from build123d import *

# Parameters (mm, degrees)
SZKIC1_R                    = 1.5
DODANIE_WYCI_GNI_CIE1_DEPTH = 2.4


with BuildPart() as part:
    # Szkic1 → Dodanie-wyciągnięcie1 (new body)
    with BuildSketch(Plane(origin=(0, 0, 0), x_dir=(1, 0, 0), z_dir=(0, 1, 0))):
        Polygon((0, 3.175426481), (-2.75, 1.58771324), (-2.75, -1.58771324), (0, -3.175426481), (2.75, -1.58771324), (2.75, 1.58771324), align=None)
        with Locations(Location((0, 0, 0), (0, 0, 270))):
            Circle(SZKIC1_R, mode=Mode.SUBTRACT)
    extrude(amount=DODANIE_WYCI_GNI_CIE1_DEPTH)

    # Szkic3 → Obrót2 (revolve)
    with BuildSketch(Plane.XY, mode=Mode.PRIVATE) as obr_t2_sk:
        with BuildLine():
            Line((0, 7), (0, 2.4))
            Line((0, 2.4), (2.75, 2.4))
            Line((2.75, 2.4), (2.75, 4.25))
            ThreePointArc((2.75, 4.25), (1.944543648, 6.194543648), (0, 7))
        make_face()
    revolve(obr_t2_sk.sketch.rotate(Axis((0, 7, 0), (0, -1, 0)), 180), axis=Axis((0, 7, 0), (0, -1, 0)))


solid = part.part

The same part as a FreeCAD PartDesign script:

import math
import FreeCAD as App
import Part
import Sketcher
Q = App.Units.Quantity

doc = App.newDocument("Part")
params = doc.addObject("Spreadsheet::Sheet", "Params")
for row, (alias, value) in enumerate([
    ("sketch1_diameter", "3 mm"),
    ("pad1_length", "2.4 mm"),
    ("sketch2_radius", "2.75 mm"),
    ("sketch2_height", "4.6 mm"),
    ("revolution_angle", "360 deg"),
], start=1):
    params.set(f"A{row}", alias)
    params.set(f"B{row}", "=" + value)
    params.setAlias(f"B{row}", alias)

body = doc.addObject("PartDesign::Body", "Body")

sketch1 = doc.addObject("Sketcher::SketchObject", "Sketch")
body.addObject(sketch1)
sketch1.AttachmentSupport = (doc.XZ_Plane, [""])
sketch1.MapMode = "FlatFace"
sketch1.addGeometry([
    Part.LineSegment(App.Vector(0, -3.2, 0), App.Vector(-2.8, -1.6, 0)),
    Part.LineSegment(App.Vector(-2.8, -1.6, 0), App.Vector(-2.8, 1.6, 0)),
    Part.LineSegment(App.Vector(-2.8, 1.6, 0), App.Vector(0, 3.2, 0)),
    Part.LineSegment(App.Vector(0, 3.2, 0), App.Vector(2.8, 1.6, 0)),
    Part.LineSegment(App.Vector(2.8, 1.6, 0), App.Vector(2.8, -1.6, 0)),
    Part.LineSegment(App.Vector(2.8, -1.6, 0), App.Vector(0, -3.2, 0)),
    Part.Circle(App.Vector(0, 0, 0), App.Vector(0, 0, 1), 1.5),
], False)
sketch1.addConstraint([
    Sketcher.Constraint("Coincident", 0, 2, 1, 1),
    Sketcher.Constraint("Coincident", 1, 2, 2, 1),
    Sketcher.Constraint("Coincident", 2, 2, 3, 1),
    Sketcher.Constraint("Coincident", 3, 2, 4, 1),
    Sketcher.Constraint("Coincident", 4, 2, 5, 1),
    Sketcher.Constraint("Coincident", 5, 2, 0, 1),
    Sketcher.Constraint("Vertical", 1),
    Sketcher.Constraint("Vertical", 4),
    Sketcher.Constraint("Coincident", 6, 3, -1, 1),
    Sketcher.Constraint("Symmetric", 0, 2, 3, 2, -1, 1),
    Sketcher.Constraint("Symmetric", 2, 2, 5, 2, -1, 1),
    Sketcher.Constraint("PointOnObject", 2, 2, -2),
    Sketcher.Constraint("Parallel", 2, 5),
    Sketcher.Constraint("Horizontal", 1, 2, 3, 2),
    Sketcher.Constraint("Diameter", 6, 3.0),
    Sketcher.Constraint("Angle", 0, Q("150 deg")),
    Sketcher.Constraint("DistanceX", 1, 2, 3, 2, 5.5),
    Sketcher.Constraint("DistanceY", 1, 1, 1, 2, 3.175426),
])
sketch1.setExpression("Constraints[14]", "Params.sketch1_diameter")
pad1 = doc.addObject("PartDesign::Pad", "Pad")
body.addObject(pad1)
pad1.Profile = sketch1
pad1.setExpression("Length", "Params.pad1_length")
pad1.Reversed = True

sketch2 = doc.addObject("Sketcher::SketchObject", "Sketch001")
body.addObject(sketch2)
sketch2.AttachmentSupport = (doc.XY_Plane, [""])
sketch2.MapMode = "FlatFace"
sketch2.addGeometry([
    Part.LineSegment(App.Vector(0, 7, 0), App.Vector(0, 2.4, 0)),
    Part.LineSegment(App.Vector(0, 2.4, 0), App.Vector(2.8, 2.4, 0)),
    Part.LineSegment(App.Vector(2.8, 2.4, 0), App.Vector(2.8, 4.2, 0)),
    Part.ArcOfCircle(Part.Circle(App.Vector(0, 4.2, 0), App.Vector(0, 0, 1), 2.8), math.radians(0), math.radians(90)),
], False)
sketch2.addConstraint([
    Sketcher.Constraint("Coincident", 0, 2, 1, 1),
    Sketcher.Constraint("Coincident", 1, 2, 2, 1),
    Sketcher.Constraint("Tangent", 2, 2, 3, 1),
    Sketcher.Constraint("Coincident", 3, 2, 0, 1),
    Sketcher.Constraint("Vertical", 0),
    Sketcher.Constraint("Horizontal", 1),
    Sketcher.Constraint("Vertical", 2),
    Sketcher.Constraint("PointOnObject", 3, 3, -2),
    Sketcher.Constraint("PointOnObject", 0, 2, -2),
    Sketcher.Constraint("Radius", 3, 2.75),
    Sketcher.Constraint("DistanceY", 0, 2, 0, 1, 4.6),
    Sketcher.Constraint("DistanceY", -1, 1, 3, 2, 7.0),
])
sketch2.setExpression("Constraints[9]", "Params.sketch2_radius")
sketch2.setExpression("Constraints[10]", "Params.sketch2_height")
revolution = doc.addObject("PartDesign::Revolution", "Revolution")
body.addObject(revolution)
revolution.Profile = sketch2
revolution.ReferenceAxis = (sketch2, ["V_Axis"])
revolution.setExpression("Angle", "Params.revolution_angle")

doc.recompute()
